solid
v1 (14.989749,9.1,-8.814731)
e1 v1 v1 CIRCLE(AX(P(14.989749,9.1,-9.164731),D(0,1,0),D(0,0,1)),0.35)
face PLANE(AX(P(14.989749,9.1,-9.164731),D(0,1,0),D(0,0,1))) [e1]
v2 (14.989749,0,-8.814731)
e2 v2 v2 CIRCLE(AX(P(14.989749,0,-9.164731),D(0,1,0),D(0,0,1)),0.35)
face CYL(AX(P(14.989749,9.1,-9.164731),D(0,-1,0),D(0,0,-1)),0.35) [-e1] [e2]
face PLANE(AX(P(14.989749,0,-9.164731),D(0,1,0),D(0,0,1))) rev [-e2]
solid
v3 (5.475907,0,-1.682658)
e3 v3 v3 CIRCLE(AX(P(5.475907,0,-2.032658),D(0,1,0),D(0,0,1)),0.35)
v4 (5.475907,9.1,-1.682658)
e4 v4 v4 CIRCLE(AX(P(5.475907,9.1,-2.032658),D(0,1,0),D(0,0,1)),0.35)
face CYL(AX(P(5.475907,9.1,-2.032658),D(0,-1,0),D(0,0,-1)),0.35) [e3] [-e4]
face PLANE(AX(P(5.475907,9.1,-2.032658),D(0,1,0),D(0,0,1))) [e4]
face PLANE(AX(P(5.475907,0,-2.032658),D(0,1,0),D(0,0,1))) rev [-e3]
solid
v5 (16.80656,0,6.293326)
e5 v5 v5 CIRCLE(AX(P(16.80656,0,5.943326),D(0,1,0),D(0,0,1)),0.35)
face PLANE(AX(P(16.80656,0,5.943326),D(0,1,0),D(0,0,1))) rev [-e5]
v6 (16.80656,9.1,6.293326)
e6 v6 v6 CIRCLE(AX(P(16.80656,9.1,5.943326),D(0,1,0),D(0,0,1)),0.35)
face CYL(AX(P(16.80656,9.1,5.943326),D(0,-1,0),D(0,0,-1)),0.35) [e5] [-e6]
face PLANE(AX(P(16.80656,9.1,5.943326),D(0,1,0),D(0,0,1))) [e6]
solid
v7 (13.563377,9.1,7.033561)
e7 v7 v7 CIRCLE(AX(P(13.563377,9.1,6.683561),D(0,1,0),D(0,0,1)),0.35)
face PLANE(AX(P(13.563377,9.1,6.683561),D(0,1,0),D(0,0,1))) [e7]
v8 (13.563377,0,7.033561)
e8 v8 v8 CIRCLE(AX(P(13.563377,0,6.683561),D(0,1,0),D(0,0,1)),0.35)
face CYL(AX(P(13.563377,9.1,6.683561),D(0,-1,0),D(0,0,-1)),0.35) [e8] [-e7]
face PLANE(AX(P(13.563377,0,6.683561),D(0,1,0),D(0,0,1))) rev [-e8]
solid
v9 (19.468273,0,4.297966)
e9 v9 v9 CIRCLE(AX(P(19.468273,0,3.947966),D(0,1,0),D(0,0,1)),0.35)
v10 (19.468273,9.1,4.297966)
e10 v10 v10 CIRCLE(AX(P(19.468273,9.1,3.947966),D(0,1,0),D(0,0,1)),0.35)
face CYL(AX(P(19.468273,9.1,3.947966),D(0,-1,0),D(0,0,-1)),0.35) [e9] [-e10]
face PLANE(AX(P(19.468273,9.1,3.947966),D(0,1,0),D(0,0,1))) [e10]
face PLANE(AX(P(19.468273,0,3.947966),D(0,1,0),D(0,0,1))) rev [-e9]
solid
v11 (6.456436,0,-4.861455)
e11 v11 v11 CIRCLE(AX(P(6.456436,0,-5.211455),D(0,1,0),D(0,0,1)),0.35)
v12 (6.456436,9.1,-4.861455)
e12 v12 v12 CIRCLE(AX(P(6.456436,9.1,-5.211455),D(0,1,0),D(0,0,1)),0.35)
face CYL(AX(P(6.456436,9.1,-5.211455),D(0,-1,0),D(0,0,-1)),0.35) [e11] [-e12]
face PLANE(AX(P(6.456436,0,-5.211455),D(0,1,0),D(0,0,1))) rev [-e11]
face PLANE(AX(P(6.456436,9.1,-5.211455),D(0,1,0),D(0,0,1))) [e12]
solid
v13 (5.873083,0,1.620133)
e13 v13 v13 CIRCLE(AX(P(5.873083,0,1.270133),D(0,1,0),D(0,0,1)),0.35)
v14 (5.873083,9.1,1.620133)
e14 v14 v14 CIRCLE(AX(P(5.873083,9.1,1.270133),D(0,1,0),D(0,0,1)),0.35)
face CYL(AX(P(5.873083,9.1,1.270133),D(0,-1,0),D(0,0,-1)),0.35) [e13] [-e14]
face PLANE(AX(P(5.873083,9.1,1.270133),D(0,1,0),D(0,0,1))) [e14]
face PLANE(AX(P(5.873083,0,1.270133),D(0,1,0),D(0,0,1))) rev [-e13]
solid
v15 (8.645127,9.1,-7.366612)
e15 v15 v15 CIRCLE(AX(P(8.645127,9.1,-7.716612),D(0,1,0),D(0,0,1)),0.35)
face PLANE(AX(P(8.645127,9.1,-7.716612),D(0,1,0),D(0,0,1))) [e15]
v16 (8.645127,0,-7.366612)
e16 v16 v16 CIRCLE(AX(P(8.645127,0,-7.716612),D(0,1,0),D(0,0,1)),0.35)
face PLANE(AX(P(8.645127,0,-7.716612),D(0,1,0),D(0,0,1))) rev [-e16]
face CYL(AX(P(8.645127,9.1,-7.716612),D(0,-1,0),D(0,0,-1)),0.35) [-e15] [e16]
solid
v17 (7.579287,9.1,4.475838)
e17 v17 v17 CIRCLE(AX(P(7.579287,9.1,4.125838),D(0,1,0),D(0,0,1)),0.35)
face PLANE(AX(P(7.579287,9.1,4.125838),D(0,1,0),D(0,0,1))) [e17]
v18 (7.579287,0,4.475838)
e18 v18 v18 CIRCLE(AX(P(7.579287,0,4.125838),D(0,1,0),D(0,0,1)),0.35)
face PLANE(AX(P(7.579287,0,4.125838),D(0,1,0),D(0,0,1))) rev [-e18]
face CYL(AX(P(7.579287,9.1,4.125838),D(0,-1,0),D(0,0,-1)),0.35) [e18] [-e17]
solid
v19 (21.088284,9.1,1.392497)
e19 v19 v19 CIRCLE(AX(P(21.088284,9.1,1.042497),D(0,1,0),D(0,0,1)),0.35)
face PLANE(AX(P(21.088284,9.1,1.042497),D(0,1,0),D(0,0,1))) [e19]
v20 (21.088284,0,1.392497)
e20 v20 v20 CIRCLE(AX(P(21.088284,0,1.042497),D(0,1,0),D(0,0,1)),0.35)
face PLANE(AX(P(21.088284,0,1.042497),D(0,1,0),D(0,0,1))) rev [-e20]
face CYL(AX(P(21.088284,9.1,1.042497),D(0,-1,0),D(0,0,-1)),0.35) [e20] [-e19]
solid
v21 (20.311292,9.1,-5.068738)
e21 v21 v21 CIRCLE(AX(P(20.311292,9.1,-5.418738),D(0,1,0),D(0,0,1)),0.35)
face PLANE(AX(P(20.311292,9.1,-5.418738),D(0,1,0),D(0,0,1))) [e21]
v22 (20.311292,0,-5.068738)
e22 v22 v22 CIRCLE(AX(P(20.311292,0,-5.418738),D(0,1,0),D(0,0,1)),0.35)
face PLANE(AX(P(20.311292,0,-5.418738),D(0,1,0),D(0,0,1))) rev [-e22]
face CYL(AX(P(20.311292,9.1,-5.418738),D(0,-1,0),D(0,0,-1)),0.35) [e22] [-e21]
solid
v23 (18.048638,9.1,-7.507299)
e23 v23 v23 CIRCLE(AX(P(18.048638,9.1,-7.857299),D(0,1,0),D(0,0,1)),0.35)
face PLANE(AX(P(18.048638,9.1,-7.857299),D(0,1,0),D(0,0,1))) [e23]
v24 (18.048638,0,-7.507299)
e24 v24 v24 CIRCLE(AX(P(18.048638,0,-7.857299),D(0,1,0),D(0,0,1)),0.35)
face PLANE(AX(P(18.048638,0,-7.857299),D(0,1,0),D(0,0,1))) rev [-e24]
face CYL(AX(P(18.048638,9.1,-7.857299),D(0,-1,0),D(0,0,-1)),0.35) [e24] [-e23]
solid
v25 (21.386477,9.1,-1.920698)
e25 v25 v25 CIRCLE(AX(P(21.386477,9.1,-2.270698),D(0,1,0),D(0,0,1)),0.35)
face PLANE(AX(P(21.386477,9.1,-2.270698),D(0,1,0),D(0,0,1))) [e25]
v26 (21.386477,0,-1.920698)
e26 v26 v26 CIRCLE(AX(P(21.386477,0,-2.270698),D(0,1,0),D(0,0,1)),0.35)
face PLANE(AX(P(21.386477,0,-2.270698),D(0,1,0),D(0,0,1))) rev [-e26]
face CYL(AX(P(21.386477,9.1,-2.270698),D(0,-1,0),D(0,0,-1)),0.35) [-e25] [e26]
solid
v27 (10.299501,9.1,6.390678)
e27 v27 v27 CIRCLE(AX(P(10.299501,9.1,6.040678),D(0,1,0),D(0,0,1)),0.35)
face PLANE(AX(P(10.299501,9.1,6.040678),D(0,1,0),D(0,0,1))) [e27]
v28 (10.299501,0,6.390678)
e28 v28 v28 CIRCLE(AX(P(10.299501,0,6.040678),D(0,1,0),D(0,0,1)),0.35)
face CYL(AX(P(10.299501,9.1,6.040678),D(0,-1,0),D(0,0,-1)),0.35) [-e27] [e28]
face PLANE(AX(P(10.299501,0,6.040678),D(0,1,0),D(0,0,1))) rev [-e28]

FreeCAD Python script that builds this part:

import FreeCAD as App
import Part
import Sketcher

V = App.Vector
Q = App.Units.Quantity

doc = App.newDocument("Part")
params = doc.addObject("Spreadsheet::Sheet", "Params")
for row, (alias, value) in enumerate([
    ("sketch1_diameter", "0.7 mm"),
    ("pad1_length", "9.1 mm"),
    ("sketch2_diameter", "0.7 mm"),
    ("pad2_length", "9.1 mm"),
    ("sketch3_diameter", "0.7 mm"),
    ("pad3_length", "9.1 mm"),
    ("sketch4_diameter", "0.7 mm"),
    ("pad4_length", "9.1 mm"),
    ("sketch5_diameter", "0.7 mm"),
    ("pad5_length", "9.1 mm"),
    ("sketch6_diameter", "0.7 mm"),
    ("pad6_length", "9.1 mm"),
    ("sketch7_diameter", "0.7 mm"),
    ("pad7_length", "9.1 mm"),
    ("sketch8_diameter", "0.7 mm"),
    ("pad8_length", "9.1 mm"),
    ("sketch9_diameter", "0.7 mm"),
    ("pad9_length", "9.1 mm"),
    ("sketch10_diameter", "0.7 mm"),
    ("pad10_length", "9.1 mm"),
    ("sketch11_diameter", "0.7 mm"),
    ("pad11_length", "9.1 mm"),
    ("sketch12_diameter", "0.7 mm"),
    ("pad12_length", "9.1 mm"),
    ("sketch13_diameter", "0.7 mm"),
    ("pad13_length", "9.1 mm"),
    ("sketch14_diameter", "0.7 mm"),
    ("pad14_length", "9.1 mm"),
], start=1):
    params.set(f"A{row}", alias)
    params.set(f"B{row}", "=" + value)
    params.setAlias(f"B{row}", alias)

body = doc.addObject("PartDesign::Body", "Body")

# Sketch on XZ plane
sketch1 = body.newObject("Sketcher::SketchObject", "Sketch")
sketch1.AttachmentSupport = (doc.getObject("XZ_Plane"), [""])
sketch1.MapMode = "FlatFace"
sketch1.addGeometry(Part.Circle(V(14.989749, -9.164731, 0), V(0, 0, 1), 0.35), False)
sketch1.addConstraint([
    Sketcher.Constraint("Diameter", 0, Q("0.7 mm")),
    Sketcher.Constraint("DistanceX", -1, 1, 0, 3, Q("14.989749 mm")),
    Sketcher.Constraint("DistanceY", 0, 3, -1, 1, Q("9.164731 mm")),
])
sketch1.setExpression("Constraints[0]", "Params.sketch1_diameter")
pad1 = body.newObject("PartDesign::Pad", "Pad")
pad1.Profile = sketch1
pad1.setExpression("Length", "Params.pad1_length")
pad1.Reversed = True
body2 = doc.addObject("PartDesign::Body", "Body001")

# Sketch on XZ plane
sketch2 = body2.newObject("Sketcher::SketchObject", "Sketch001")
sketch2.AttachmentSupport = (doc.getObject("XZ_Plane001"), [""])
sketch2.MapMode = "FlatFace"
sketch2.addGeometry(Part.Circle(V(18.048638, -7.857299, 0), V(0, 0, 1), 0.35), False)
sketch2.addConstraint([
    Sketcher.Constraint("Diameter", 0, Q("0.7 mm")),
    Sketcher.Constraint("DistanceY", 0, 3, -1, 1, Q("7.857299 mm")),
    Sketcher.Constraint("DistanceX", -1, 1, 0, 3, Q("18.048638 mm")),
])
sketch2.setExpression("Constraints[0]", "Params.sketch2_diameter")
pad2 = body2.newObject("PartDesign::Pad", "Pad001")
pad2.Profile = sketch2
pad2.setExpression("Length", "Params.pad2_length")
pad2.Reversed = True
body3 = doc.addObject("PartDesign::Body", "Body002")

# Sketch on XZ plane
sketch3 = body3.newObject("Sketcher::SketchObject", "Sketch002")
sketch3.AttachmentSupport = (doc.getObject("XZ_Plane002"), [""])
sketch3.MapMode = "FlatFace"
sketch3.addGeometry(Part.Circle(V(20.311292, -5.418738, 0), V(0, 0, 1), 0.35), False)
sketch3.addConstraint([
    Sketcher.Constraint("Diameter", 0, Q("0.7 mm")),
    Sketcher.Constraint("DistanceY", 0, 3, -1, 1, Q("5.418738 mm")),
    Sketcher.Constraint("DistanceX", -1, 1, 0, 3, Q("20.311292 mm")),
])
sketch3.setExpression("Constraints[0]", "Params.sketch3_diameter")
pad3 = body3.newObject("PartDesign::Pad", "Pad002")
pad3.Profile = sketch3
pad3.setExpression("Length", "Params.pad3_length")
pad3.Reversed = True
body4 = doc.addObject("PartDesign::Body", "Body003")

# Sketch on XZ plane
sketch4 = body4.newObject("Sketcher::SketchObject", "Sketch003")
sketch4.AttachmentSupport = (doc.getObject("XZ_Plane003"), [""])
sketch4.MapMode = "FlatFace"
sketch4.addGeometry(Part.Circle(V(21.386477, -2.270698, 0), V(0, 0, 1), 0.35), False)
sketch4.addConstraint([
    Sketcher.Constraint("Diameter", 0, Q("0.7 mm")),
    Sketcher.Constraint("DistanceX", -1, 1, 0, 3, Q("21.386477 mm")),
    Sketcher.Constraint("DistanceY", 0, 3, -1, 1, Q("2.270698 mm")),
])
sketch4.setExpression("Constraints[0]", "Params.sketch4_diameter")
pad4 = body4.newObject("PartDesign::Pad", "Pad003")
pad4.Profile = sketch4
pad4.setExpression("Length", "Params.pad4_length")
pad4.Reversed = True
body5 = doc.addObject("PartDesign::Body", "Body004")

# Sketch on XZ plane
sketch5 = body5.newObject("Sketcher::SketchObject", "Sketch004")
sketch5.AttachmentSupport = (doc.getObject("XZ_Plane004"), [""])
sketch5.MapMode = "FlatFace"
sketch5.addGeometry(Part.Circle(V(21.088284, 1.042497, 0), V(0, 0, 1), 0.35), False)
sketch5.addConstraint([
    Sketcher.Constraint("Diameter", 0, Q("0.7 mm")),
    Sketcher.Constraint("DistanceX", -1, 1, 0, 3, Q("21.088284 mm")),
    Sketcher.Constraint("DistanceY", -1, 1, 0, 3, Q("1.042497 mm")),
])
sketch5.setExpression("Constraints[0]", "Params.sketch5_diameter")
pad5 = body5.newObject("PartDesign::Pad", "Pad004")
pad5.Profile = sketch5
pad5.setExpression("Length", "Params.pad5_length")
pad5.Reversed = True
body6 = doc.addObject("PartDesign::Body", "Body005")

# Sketch on XZ plane
sketch6 = body6.newObject("Sketcher::SketchObject", "Sketch005")
sketch6.AttachmentSupport = (doc.getObject("XZ_Plane005"), [""])
sketch6.MapMode = "FlatFace"
sketch6.addGeometry(Part.Circle(V(19.468273, 3.947966, 0), V(0, 0, 1), 0.35), False)
sketch6.addConstraint([
    Sketcher.Constraint("Diameter", 0, Q("0.7 mm")),
    Sketcher.Constraint("DistanceX", -1, 1, 0, 3, Q("19.468273 mm")),
    Sketcher.Constraint("DistanceY", -1, 1, 0, 3, Q("3.947966 mm")),
])
sketch6.setExpression("Constraints[0]", "Params.sketch6_diameter")
pad6 = body6.newObject("PartDesign::Pad", "Pad005")
pad6.Profile = sketch6
pad6.setExpression("Length", "Params.pad6_length")
pad6.Reversed = True
body7 = doc.addObject("PartDesign::Body", "Body006")

# Sketch on XZ plane
sketch7 = body7.newObject("Sketcher::SketchObject", "Sketch006")
sketch7.AttachmentSupport = (doc.getObject("XZ_Plane006"), [""])
sketch7.MapMode = "FlatFace"
sketch7.addGeometry(Part.Circle(V(16.80656, 5.943326, 0), V(0, 0, 1), 0.35), False)
sketch7.addConstraint([
    Sketcher.Constraint("Diameter", 0, Q("0.7 mm")),
    Sketcher.Constraint("DistanceX", -1, 1, 0, 3, Q("16.80656 mm")),
    Sketcher.Constraint("DistanceY", -1, 1, 0, 3, Q("5.943326 mm")),
])
sketch7.setExpression("Constraints[0]", "Params.sketch7_diameter")
pad7 = body7.newObject("PartDesign::Pad", "Pad006")
pad7.Profile = sketch7
pad7.setExpression("Length", "Params.pad7_length")
pad7.Reversed = True
body8 = doc.addObject("PartDesign::Body", "Body007")

# Sketch on XZ plane
sketch8 = body8.newObject("Sketcher::SketchObject", "Sketch007")
sketch8.AttachmentSupport = (doc.getObject("XZ_Plane007"), [""])
sketch8.MapMode = "FlatFace"
sketch8.addGeometry(Part.Circle(V(13.563377, 6.683561, 0), V(0, 0, 1), 0.35), False)
sketch8.addConstraint([
    Sketcher.Constraint("Diameter", 0, Q("0.7 mm")),
    Sketcher.Constraint("DistanceY", -1, 1, 0, 3, Q("6.683561 mm")),
    Sketcher.Constraint("DistanceX", -1, 1, 0, 3, Q("13.563377 mm")),
])
sketch8.setExpression("Constraints[0]", "Params.sketch8_diameter")
pad8 = body8.newObject("PartDesign::Pad", "Pad007")
pad8.Profile = sketch8
pad8.setExpression("Length", "Params.pad8_length")
pad8.Reversed = True
body9 = doc.addObject("PartDesign::Body", "Body008")

# Sketch on XZ plane
sketch9 = body9.newObject("Sketcher::SketchObject", "Sketch008")
sketch9.AttachmentSupport = (doc.getObject("XZ_Plane008"), [""])
sketch9.MapMode = "FlatFace"
sketch9.addGeometry(Part.Circle(V(10.299501, 6.040678, 0), V(0, 0, 1), 0.35), False)
sketch9.addConstraint([
    Sketcher.Constraint("Diameter", 0, Q("0.7 mm")),
    Sketcher.Constraint("DistanceX", -1, 1, 0, 3, Q("10.299501 mm")),
    Sketcher.Constraint("DistanceY", -1, 1, 0, 3, Q("6.040678 mm")),
])
sketch9.setExpression("Constraints[0]", "Params.sketch9_diameter")
pad9 = body9.newObject("PartDesign::Pad", "Pad008")
pad9.Profile = sketch9
pad9.setExpression("Length", "Params.pad9_length")
pad9.Reversed = True
body10 = doc.addObject("PartDesign::Body", "Body009")

# Sketch on XZ plane
sketch10 = body10.newObject("Sketcher::SketchObject", "Sketch009")
sketch10.AttachmentSupport = (doc.getObject("XZ_Plane009"), [""])
sketch10.MapMode = "FlatFace"
sketch10.addGeometry(Part.Circle(V(7.579287, 4.125838, 0), V(0, 0, 1), 0.35), False)
sketch10.addConstraint([
    Sketcher.Constraint("Diameter", 0, Q("0.7 mm")),
    Sketcher.Constraint("DistanceX", -1, 1, 0, 3, Q("7.579287 mm")),
    Sketcher.Constraint("DistanceY", -1, 1, 0, 3, Q("4.125838 mm")),
])
sketch10.setExpression("Constraints[0]", "Params.sketch10_diameter")
pad10 = body10.newObject("PartDesign::Pad", "Pad009")
pad10.Profile = sketch10
pad10.setExpression("Length", "Params.pad10_length")
pad10.Reversed = True
body11 = doc.addObject("PartDesign::Body", "Body010")

# Sketch on XZ plane
sketch11 = body11.newObject("Sketcher::SketchObject", "Sketch010")
sketch11.AttachmentSupport = (doc.getObject("XZ_Plane010"), [""])
sketch11.MapMode = "FlatFace"
sketch11.addGeometry(Part.Circle(V(5.873083, 1.270133, 0), V(0, 0, 1), 0.35), False)
sketch11.addConstraint([
    Sketcher.Constraint("Diameter", 0, Q("0.7 mm")),
    Sketcher.Constraint("DistanceX", -1, 1, 0, 3, Q("5.873083 mm")),
    Sketcher.Constraint("DistanceY", -1, 1, 0, 3, Q("1.270133 mm")),
])
sketch11.setExpression("Constraints[0]", "Params.sketch11_diameter")
pad11 = body11.newObject("PartDesign::Pad", "Pad010")
pad11.Profile = sketch11
pad11.setExpression("Length", "Params.pad11_length")
pad11.Reversed = True
body12 = doc.addObject("PartDesign::Body", "Body011")

# Sketch on XZ plane
sketch12 = body12.newObject("Sketcher::SketchObject", "Sketch011")
sketch12.AttachmentSupport = (doc.getObject("XZ_Plane011"), [""])
sketch12.MapMode = "FlatFace"
sketch12.addGeometry(Part.Circle(V(5.475907, -2.032658, 0), V(0, 0, 1), 0.35), False)
sketch12.addConstraint([
    Sketcher.Constraint("Diameter", 0, Q("0.7 mm")),
    Sketcher.Constraint("DistanceY", 0, 3, -1, 1, Q("2.032658 mm")),
    Sketcher.Constraint("DistanceX", -1, 1, 0, 3, Q("5.475907 mm")),
])
sketch12.setExpression("Constraints[0]", "Params.sketch12_diameter")
pad12 = body12.newObject("PartDesign::Pad", "Pad011")
pad12.Profile = sketch12
pad12.setExpression("Length", "Params.pad12_length")
pad12.Reversed = True
body13 = doc.addObject("PartDesign::Body", "Body012")

# Sketch on XZ plane
sketch13 = body13.newObject("Sketcher::SketchObject", "Sketch012")
sketch13.AttachmentSupport = (doc.getObject("XZ_Plane012"), [""])
sketch13.MapMode = "FlatFace"
sketch13.addGeometry(Part.Circle(V(6.456436, -5.211455, 0), V(0, 0, 1), 0.35), False)
sketch13.addConstraint([
    Sketcher.Constraint("Diameter", 0, Q("0.7 mm")),
    Sketcher.Constraint("DistanceX", -1, 1, 0, 3, Q("6.456436 mm")),
    Sketcher.Constraint("DistanceY", 0, 3, -1, 1, Q("5.211455 mm")),
])
sketch13.setExpression("Constraints[0]", "Params.sketch13_diameter")
pad13 = body13.newObject("PartDesign::Pad", "Pad012")
pad13.Profile = sketch13
pad13.setExpression("Length", "Params.pad13_length")
pad13.Reversed = True
body14 = doc.addObject("PartDesign::Body", "Body013")

# Sketch on XZ plane
sketch14 = body14.newObject("Sketcher::SketchObject", "Sketch013")
sketch14.AttachmentSupport = (doc.getObject("XZ_Plane013"), [""])
sketch14.MapMode = "FlatFace"
sketch14.addGeometry(Part.Circle(V(8.645127, -7.716612, 0), V(0, 0, 1), 0.35), False)
sketch14.addConstraint([
    Sketcher.Constraint("Diameter", 0, Q("0.7 mm")),
    Sketcher.Constraint("DistanceX", -1, 1, 0, 3, Q("8.645127 mm")),
    Sketcher.Constraint("DistanceY", 0, 3, -1, 1, Q("7.716612 mm")),
])
sketch14.setExpression("Constraints[0]", "Params.sketch14_diameter")
pad14 = body14.newObject("PartDesign::Pad", "Pad013")
pad14.Profile = sketch14
pad14.setExpression("Length", "Params.pad14_length")
pad14.Reversed = True

doc.recompute()
